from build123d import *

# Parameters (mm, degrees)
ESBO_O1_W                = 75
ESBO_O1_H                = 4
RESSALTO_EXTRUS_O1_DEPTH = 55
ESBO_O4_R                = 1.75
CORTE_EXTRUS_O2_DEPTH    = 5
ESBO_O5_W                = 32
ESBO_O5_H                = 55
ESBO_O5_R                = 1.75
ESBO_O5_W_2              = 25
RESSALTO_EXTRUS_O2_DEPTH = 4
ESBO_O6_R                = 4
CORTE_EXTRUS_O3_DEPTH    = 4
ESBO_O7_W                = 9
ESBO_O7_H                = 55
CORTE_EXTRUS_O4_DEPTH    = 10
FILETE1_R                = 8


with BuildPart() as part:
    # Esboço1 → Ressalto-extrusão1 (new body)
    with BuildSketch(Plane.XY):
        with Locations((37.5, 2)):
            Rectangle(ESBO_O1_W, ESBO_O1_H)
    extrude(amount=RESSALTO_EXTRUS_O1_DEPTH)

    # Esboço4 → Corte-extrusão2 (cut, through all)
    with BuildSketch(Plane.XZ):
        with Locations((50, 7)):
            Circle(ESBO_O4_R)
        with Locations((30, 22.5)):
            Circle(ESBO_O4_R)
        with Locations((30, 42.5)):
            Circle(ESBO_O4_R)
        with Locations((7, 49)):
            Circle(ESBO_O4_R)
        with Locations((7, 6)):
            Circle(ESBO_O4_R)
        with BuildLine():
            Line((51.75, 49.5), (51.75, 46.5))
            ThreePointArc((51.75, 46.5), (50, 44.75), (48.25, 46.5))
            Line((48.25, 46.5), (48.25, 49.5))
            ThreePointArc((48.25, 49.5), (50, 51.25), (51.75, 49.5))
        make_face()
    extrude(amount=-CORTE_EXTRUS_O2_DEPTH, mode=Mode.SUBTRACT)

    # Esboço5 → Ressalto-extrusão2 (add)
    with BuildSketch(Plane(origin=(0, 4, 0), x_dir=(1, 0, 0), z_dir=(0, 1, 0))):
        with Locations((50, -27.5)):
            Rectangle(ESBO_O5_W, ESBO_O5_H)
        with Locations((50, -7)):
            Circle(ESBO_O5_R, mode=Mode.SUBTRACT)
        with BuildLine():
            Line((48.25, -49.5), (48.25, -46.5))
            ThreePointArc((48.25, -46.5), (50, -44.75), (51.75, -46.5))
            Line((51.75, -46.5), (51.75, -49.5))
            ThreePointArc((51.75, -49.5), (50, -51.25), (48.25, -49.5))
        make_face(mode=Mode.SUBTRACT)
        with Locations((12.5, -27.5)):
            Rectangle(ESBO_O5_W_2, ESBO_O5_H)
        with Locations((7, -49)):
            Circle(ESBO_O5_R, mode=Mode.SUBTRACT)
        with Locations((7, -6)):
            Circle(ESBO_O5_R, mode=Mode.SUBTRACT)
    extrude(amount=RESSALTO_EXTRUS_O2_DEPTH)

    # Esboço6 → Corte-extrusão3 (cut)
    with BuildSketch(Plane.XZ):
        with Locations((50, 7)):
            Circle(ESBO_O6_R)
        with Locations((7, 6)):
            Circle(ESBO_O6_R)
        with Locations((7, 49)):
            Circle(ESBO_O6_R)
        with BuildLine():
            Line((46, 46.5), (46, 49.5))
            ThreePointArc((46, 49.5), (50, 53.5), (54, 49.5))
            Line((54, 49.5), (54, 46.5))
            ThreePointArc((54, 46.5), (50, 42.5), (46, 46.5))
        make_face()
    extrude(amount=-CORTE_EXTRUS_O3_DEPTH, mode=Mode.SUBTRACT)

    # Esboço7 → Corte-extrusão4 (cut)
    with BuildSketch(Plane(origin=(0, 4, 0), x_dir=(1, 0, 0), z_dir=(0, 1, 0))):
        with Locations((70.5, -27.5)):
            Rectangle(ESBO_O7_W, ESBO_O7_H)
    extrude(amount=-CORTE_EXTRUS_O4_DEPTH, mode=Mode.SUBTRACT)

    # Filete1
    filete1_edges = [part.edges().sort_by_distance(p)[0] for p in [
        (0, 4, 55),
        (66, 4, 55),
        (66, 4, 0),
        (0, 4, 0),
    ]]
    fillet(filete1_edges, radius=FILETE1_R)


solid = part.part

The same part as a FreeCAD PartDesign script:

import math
import FreeCAD as App
import Part
import Sketcher
from FreeCAD import Vector
Q = App.Units.Quantity


def edges_at(feature, points):
    """Names of the edges that pass closest to the given points."""
    edges = feature.Shape.Edges
    near = lambda p: min(range(len(edges)), key=lambda i: edges[i].distToShape(Part.Vertex(*p))[0])
    return sorted({f"Edge{near(p) + 1}" for p in points})

doc = App.newDocument("Part")
params = doc.addObject("Spreadsheet::Sheet", "Params")
for row, (alias, value) in enumerate([
    ("sketch1_width", "75 mm"),
    ("sketch1_height", "4 mm"),
    ("pad1_length", "55 mm"),
    ("sketch2_diameter", "3.5 mm"),
    ("sketch2_height", "3 mm"),
    ("sketch3_diameter", "3.5 mm"),
    ("sketch3_width", "32 mm"),
    ("sketch3_width2", "25 mm"),
    ("sketch3_height", "55 mm"),
    ("sketch3_height2", "3 mm"),
    ("pad2_length", "4 mm"),
    ("sketch4_diameter", "8 mm"),
    ("sketch4_height", "3 mm"),
    ("pocket2_length", "4 mm"),
    ("sketch5_width", "9 mm"),
    ("sketch5_height", "55 mm"),
    ("pocket3_length", "10 mm"),
    ("fillet_radius", "8 mm"),
], start=1):
    params.set(f"A{row}", alias)
    params.set(f"B{row}", "=" + value)
    params.setAlias(f"B{row}", alias)

body = doc.addObject("PartDesign::Body", "Body")

sketch1 = body.newObject("Sketcher::SketchObject", "Sketch")
sketch1.AttachmentSupport = (doc.getObject("XY_Plane"), [""])
sketch1.MapMode = "FlatFace"
sketch1.addGeometry(Part.LineSegment(Vector(0, 4, 0), Vector(0, 0, 0)), False)
sketch1.addGeometry(Part.LineSegment(Vector(0, 0, 0), Vector(75, 0, 0)), False)
sketch1.addGeometry(Part.LineSegment(Vector(75, 0, 0), Vector(75, 4, 0)), False)
sketch1.addGeometry(Part.LineSegment(Vector(75, 4, 0), Vector(0, 4, 0)), False)
sketch1.addConstraint(Sketcher.Constraint("Coincident", 0, 2, 1, 1))
sketch1.addConstraint(Sketcher.Constraint("Coincident", 1, 2, 2, 1))
sketch1.addConstraint(Sketcher.Constraint("Coincident", 2, 2, 3, 1))
sketch1.addConstraint(Sketcher.Constraint("Coincident", 3, 2, 0, 1))
sketch1.addConstraint(Sketcher.Constraint("Vertical", 0))
sketch1.addConstraint(Sketcher.Constraint("Horizontal", 1))
sketch1.addConstraint(Sketcher.Constraint("Vertical", 2))
sketch1.addConstraint(Sketcher.Constraint("Horizontal", 3))
sketch1.addConstraint(Sketcher.Constraint("Coincident", 0, 2, -1, 1))
sketch1.addConstraint(Sketcher.Constraint("DistanceX", 1, 1, 1, 2, Q("75 mm")))
sketch1.addConstraint(Sketcher.Constraint("DistanceY", 0, 2, 0, 1, Q("4 mm")))
sketch1.setExpression("Constraints[9]", "Params.sketch1_width")
sketch1.setExpression("Constraints[10]", "Params.sketch1_height")
pad1 = body.newObject("PartDesign::Pad", "Pad")
pad1.Profile = sketch1
pad1.setExpression("Length", "Params.pad1_length")

sketch2 = body.newObject("Sketcher::SketchObject", "Sketch001")
sketch2.AttachmentSupport = (doc.getObject("XZ_Plane"), [""])
sketch2.MapMode = "FlatFace"
sketch2.addGeometry(Part.Circle(Vector(50, 7, 0), Vector(0, 0, 1), 1.8), False)
sketch2.addGeometry(Part.Circle(Vector(30, 22.5, 0), Vector(0, 0, 1), 1.8), False)
sketch2.addGeometry(Part.Circle(Vector(30, 42.5, 0), Vector(0, 0, 1), 1.8), False)
sketch2.addGeometry(Part.Circle(Vector(7, 49, 0), Vector(0, 0, 1), 1.8), False)
sketch2.addGeometry(Part.Circle(Vector(7, 6, 0), Vector(0, 0, 1), 1.8), False)
sketch2.addGeometry(Part.LineSegment(Vector(51.8, 46.5, 0), Vector(51.8, 49.5, 0)), False)
sketch2.addGeometry(Part.ArcOfCircle(Part.Circle(Vector(50, 49.5, 0), Vector(0, 0, 1), 1.8), math.radians(0), math.radians(180)), False)
sketch2.addGeometry(Part.LineSegment(Vector(48.2, 49.5, 0), Vector(48.2, 46.5, 0)), False)
sketch2.addGeometry(Part.ArcOfCircle(Part.Circle(Vector(50, 46.5, 0), Vector(0, 0, 1), 1.8), math.radians(180), math.radians(360)), False)
sketch2.addConstraint(Sketcher.Constraint("Tangent", 5, 2, 6, 1))
sketch2.addConstraint(Sketcher.Constraint("Tangent", 6, 2, 7, 1))
sketch2.addConstraint(Sketcher.Constraint("Tangent", 7, 2, 8, 1))
sketch2.addConstraint(Sketcher.Constraint("Tangent", 8, 2, 5, 1))
sketch2.addConstraint(Sketcher.Constraint("Vertical", 5))
sketch2.addConstraint(Sketcher.Constraint("Vertical", 7))
sketch2.addConstraint(Sketcher.Constraint("Equal", 0, 1))
sketch2.addConstraint(Sketcher.Constraint("Equal", 1, 2))
sketch2.addConstraint(Sketcher.Constraint("Equal", 2, 3))
sketch2.addConstraint(Sketcher.Constraint("Equal", 3, 4))
sketch2.addConstraint(Sketcher.Constraint("Equal", 4, 6))
sketch2.addConstraint(Sketcher.Constraint("Vertical", 1, 3, 2, 3))
sketch2.addConstraint(Sketcher.Constraint("Vertical", 3, 3, 4, 3))
sketch2.addConstraint(Sketcher.Constraint("Vertical", 0, 3, 6, 3))
sketch2.addConstraint(Sketcher.Constraint("Diameter", 0, Q("3.5 mm")))
sketch2.addConstraint(Sketcher.Constraint("DistanceY", 5, 1, 5, 2, Q("3 mm")))
sketch2.addConstraint(Sketcher.Constraint("DistanceX", -1, 1, 0, 3, Q("50 mm")))
sketch2.addConstraint(Sketcher.Constraint("DistanceY", -1, 1, 0, 3, Q("7 mm")))
sketch2.addConstraint(Sketcher.Constraint("DistanceX", -1, 1, 1, 3, Q("30 mm")))
sketch2.addConstraint(Sketcher.Constraint("DistanceX", -1, 1, 3, 3, Q("7 mm")))
sketch2.addConstraint(Sketcher.Constraint("DistanceY", -1, 1, 3, 3, Q("49 mm")))
sketch2.addConstraint(Sketcher.Constraint("DistanceY", -1, 1, 4, 3, Q("6 mm")))
sketch2.addConstraint(Sketcher.Constraint("DistanceY", 1, 3, 2, 3, Q("20 mm")))
sketch2.addConstraint(Sketcher.Constraint("DistanceY", 2, 3, 6, 3, Q("7 mm")))
sketch2.addConstraint(Sketcher.Constraint("DistanceY", -1, 1, 1, 3, Q("22.5 mm")))
sketch2.setExpression("Constraints[14]", "Params.sketch2_diameter")
sketch2.setExpression("Constraints[15]", "Params.sketch2_height")
pocket1 = body.newObject("PartDesign::Pocket", "Pocket")
pocket1.Profile = sketch2
pocket1.Type = "ThroughAll"

sketch3 = body.newObject("Sketcher::SketchObject", "Sketch002")
sketch3.AttachmentSupport = (doc.getObject("XZ_Plane"), [""])
sketch3.MapMode = "FlatFace"
sketch3.AttachmentOffset = App.Placement(Vector(0, 0, -4), App.Rotation())
sketch3.addGeometry(Part.LineSegment(Vector(34, 0, 0), Vector(34, 55, 0)), False)
sketch3.addGeometry(Part.LineSegment(Vector(34, 55, 0), Vector(66, 55, 0)), False)
sketch3.addGeometry(Part.LineSegment(Vector(66, 55, 0), Vector(66, 0, 0)), False)
sketch3.addGeometry(Part.LineSegment(Vector(66, 0, 0), Vector(34, 0, 0)), False)
sketch3.addGeometry(Part.ArcOfCircle(Part.Circle(Vector(50, 49.5, 0), Vector(0, 0, 1), 1.8), math.radians(0), math.radians(180)), False)
sketch3.addGeometry(Part.LineSegment(Vector(48.2, 49.5, 0), Vector(48.2, 46.5, 0)), False)
sketch3.addGeometry(Part.ArcOfCircle(Part.Circle(Vector(50, 46.5, 0), Vector(0, 0, 1), 1.8), math.radians(180), math.radians(360)), False)
sketch3.addGeometry(Part.LineSegment(Vector(51.8, 46.5, 0), Vector(51.8, 49.5, 0)), False)
sketch3.addGeometry(Part.Circle(Vector(50, 7, 0), Vector(0, 0, 1), 1.8), False)
sketch3.addGeometry(Part.LineSegment(Vector(0, 0, 0), Vector(0, 55, 0)), False)
sketch3.addGeometry(Part.LineSegment(Vector(0, 55, 0), Vector(25, 55, 0)), False)
sketch3.addGeometry(Part.LineSegment(Vector(25, 55, 0), Vector(25, 0, 0)), False)
sketch3.addGeometry(Part.LineSegment(Vector(25, 0, 0), Vector(0, 0, 0)), False)
sketch3.addGeometry(Part.Circle(Vector(7, 49, 0), Vector(0, 0, 1), 1.8), False)
sketch3.addGeometry(Part.Circle(Vector(7, 6, 0), Vector(0, 0, 1), 1.8), False)
sketch3.addConstraint(Sketcher.Constraint("Coincident", 0, 2, 1, 1))
sketch3.addConstraint(Sketcher.Constraint("Coincident", 1, 2, 2, 1))
sketch3.addConstraint(Sketcher.Constraint("Coincident", 2, 2, 3, 1))
sketch3.addConstraint(Sketcher.Constraint("Coincident", 3, 2, 0, 1))
sketch3.addConstraint(Sketcher.Constraint("Tangent", 4, 2, 5, 1))
sketch3.addConstraint(Sketcher.Constraint("Tangent", 5, 2, 6, 1))
sketch3.addConstraint(Sketcher.Constraint("Tangent", 6, 2, 7, 1))
sketch3.addConstraint(Sketcher.Constraint("Tangent", 7, 2, 4, 1))
sketch3.addConstraint(Sketcher.Constraint("Coincident", 9, 2, 10, 1))
sketch3.addConstraint(Sketcher.Constraint("Coincident", 10, 2, 11, 1))
sketch3.addConstraint(Sketcher.Constraint("Coincident", 11, 2, 12, 1))
sketch3.addConstraint(Sketcher.Constraint("Coincident", 12, 2, 9, 1))
sketch3.addConstraint(Sketcher.Constraint("Vertical", 0))
sketch3.addConstraint(Sketcher.Constraint("Horizontal", 1))
sketch3.addConstraint(Sketcher.Constraint("Vertical", 2))
sketch3.addConstraint(Sketcher.Constraint("Horizontal", 3))
sketch3.addConstraint(Sketcher.Constraint("Vertical", 5))
sketch3.addConstraint(Sketcher.Constraint("Vertical", 7))
sketch3.addConstraint(Sketcher.Constraint("Vertical", 9))
sketch3.addConstraint(Sketcher.Constraint("Horizontal", 10))
sketch3.addConstraint(Sketcher.Constraint("Vertical", 11))
sketch3.addConstraint(Sketcher.Constraint("Horizontal", 12))
sketch3.addConstraint(Sketcher.Constraint("Coincident", 12, 2, -1, 1))
sketch3.addConstraint(Sketcher.Constraint("Equal", 6, 8))
sketch3.addConstraint(Sketcher.Constraint("Equal", 8, 13))
sketch3.addConstraint(Sketcher.Constraint("Equal", 13, 14))
sketch3.addConstraint(Sketcher.Constraint("PointOnObject", 2, 2, -1))
sketch3.addConstraint(Sketcher.Constraint("Horizontal", 1, 2, 9, 2))
sketch3.addConstraint(Sketcher.Constraint("Vertical", 6, 3, 8, 3))
sketch3.addConstraint(Sketcher.Constraint("Vertical", 13, 3, 14, 3))
sketch3.addConstraint(Sketcher.Constraint("Diameter", 8, Q("3.5 mm")))
sketch3.addConstraint(Sketcher.Constraint("DistanceX", 1, 1, 1, 2, Q("32 mm")))
sketch3.addConstraint(Sketcher.Constraint("DistanceX", 10, 1, 10, 2, Q("25 mm")))
sketch3.addConstraint(Sketcher.Constraint("DistanceY", 0, 1, 0, 2, Q("55 mm")))
sketch3.addConstraint(Sketcher.Constraint("DistanceY", 5, 2, 5, 1, Q("3 mm")))
sketch3.addConstraint(Sketcher.Constraint("DistanceX", -1, 1, 4, 3, Q("50 mm")))
sketch3.addConstraint(Sketcher.Constraint("DistanceY", -1, 1, 8, 3, Q("7 mm")))
sketch3.addConstraint(Sketcher.Constraint("DistanceX", -1, 1, 13, 3, Q("7 mm")))
sketch3.addConstraint(Sketcher.Constraint("DistanceY", -1, 1, 13, 3, Q("49 mm")))
sketch3.addConstraint(Sketcher.Constraint("DistanceY", -1, 1, 14, 3, Q("6 mm")))
sketch3.addConstraint(Sketcher.Constraint("DistanceX", -1, 1, 0, 2, Q("34 mm")))
sketch3.addConstraint(Sketcher.Constraint("DistanceY", -1, 1, 4, 3, Q("49.5 mm")))
sketch3.setExpression("Constraints[30]", "Params.sketch3_diameter")
sketch3.setExpression("Constraints[31]", "Params.sketch3_width")
sketch3.setExpression("Constraints[32]", "Params.sketch3_width2")
sketch3.setExpression("Constraints[33]", "Params.sketch3_height")
sketch3.setExpression("Constraints[34]", "Params.sketch3_height2")
pad2 = body.newObject("PartDesign::Pad", "Pad001")
pad2.Profile = sketch3
pad2.setExpression("Length", "Params.pad2_length")
pad2.Reversed = True

sketch4 = body.newObject("Sketcher::SketchObject", "Sketch003")
sketch4.AttachmentSupport = (doc.getObject("XZ_Plane"), [""])
sketch4.MapMode = "FlatFace"
sketch4.addGeometry(Part.Circle(Vector(50, 7, 0), Vector(0, 0, 1), 4), False)
sketch4.addGeometry(Part.Circle(Vector(7, 6, 0), Vector(0, 0, 1), 4), False)
sketch4.addGeometry(Part.Circle(Vector(7, 49, 0), Vector(0, 0, 1), 4), False)
sketch4.addGeometry(Part.LineSegment(Vector(46, 49.5, 0), Vector(46, 46.5, 0)), False)
sketch4.addGeometry(Part.ArcOfCircle(Part.Circle(Vector(50, 46.5, 0), Vector(0, 0, 1), 4), math.radians(180), math.radians(360)), False)
sketch4.addGeometry(Part.LineSegment(Vector(54, 46.5, 0), Vector(54, 49.5, 0)), False)
sketch4.addGeometry(Part.ArcOfCircle(Part.Circle(Vector(50, 49.5, 0), Vector(0, 0, 1), 4), math.radians(0), math.radians(180)), False)
sketch4.addConstraint(Sketcher.Constraint("Tangent", 3, 2, 4, 1))
sketch4.addConstraint(Sketcher.Constraint("Tangent", 4, 2, 5, 1))
sketch4.addConstraint(Sketcher.Constraint("Tangent", 5, 2, 6, 1))
sketch4.addConstraint(Sketcher.Constraint("Tangent", 6, 2, 3, 1))
sketch4.addConstraint(Sketcher.Constraint("Vertical", 3))
sketch4.addConstraint(Sketcher.Constraint("Vertical", 5))
sketch4.addConstraint(Sketcher.Constraint("Equal", 0, 1))
sketch4.addConstraint(Sketcher.Constraint("Equal", 1, 2))
sketch4.addConstraint(Sketcher.Constraint("Equal", 2, 4))
sketch4.addConstraint(Sketcher.Constraint("Vertical", 1, 3, 2, 3))
sketch4.addConstraint(Sketcher.Constraint("Vertical", 0, 3, 4, 3))
sketch4.addConstraint(Sketcher.Constraint("Diameter", 0, Q("8 mm")))
sketch4.addConstraint(Sketcher.Constraint("DistanceY", 3, 2, 3, 1, Q("3 mm")))
sketch4.addConstraint(Sketcher.Constraint("DistanceX", -1, 1, 0, 3, Q("50 mm")))
sketch4.addConstraint(Sketcher.Constraint("DistanceY", -1, 1, 0, 3, Q("7 mm")))
sketch4.addConstraint(Sketcher.Constraint("DistanceX", -1, 1, 1, 3, Q("7 mm")))
sketch4.addConstraint(Sketcher.Constraint("DistanceY", -1, 1, 1, 3, Q("6 mm")))
sketch4.addConstraint(Sketcher.Constraint("DistanceY", -1, 1, 2, 3, Q("49 mm")))
sketch4.addConstraint(Sketcher.Constraint("DistanceY", -1, 1, 4, 3, Q("46.5 mm")))
sketch4.setExpression("Constraints[11]", "Params.sketch4_diameter")
sketch4.setExpression("Constraints[12]", "Params.sketch4_height")
pocket2 = body.newObject("PartDesign::Pocket", "Pocket001")
pocket2.Profile = sketch4
pocket2.setExpression("Length", "Params.pocket2_length")

sketch5 = body.newObject("Sketcher::SketchObject", "Sketch004")
sketch5.AttachmentSupport = (doc.getObject("XZ_Plane"), [""])
sketch5.MapMode = "FlatFace"
sketch5.AttachmentOffset = App.Placement(Vector(0, 0, -4), App.Rotation())
sketch5.addGeometry(Part.LineSegment(Vector(66, 0, 0), Vector(66, 55, 0)), False)
sketch5.addGeometry(Part.LineSegment(Vector(66, 55, 0), Vector(75, 55, 0)), False)
sketch5.addGeometry(Part.LineSegment(Vector(75, 55, 0), Vector(75, 0, 0)), False)
sketch5.addGeometry(Part.LineSegment(Vector(75, 0, 0), Vector(66, 0, 0)), False)
sketch5.addConstraint(Sketcher.Constraint("Coincident", 0, 2, 1, 1))
sketch5.addConstraint(Sketcher.Constraint("Coincident", 1, 2, 2, 1))
sketch5.addConstraint(Sketcher.Constraint("Coincident", 2, 2, 3, 1))
sketch5.addConstraint(Sketcher.Constraint("Coincident", 3, 2, 0, 1))
sketch5.addConstraint(Sketcher.Constraint("Vertical", 0))
sketch5.addConstraint(Sketcher.Constraint("Horizontal", 1))
sketch5.addConstraint(Sketcher.Constraint("Vertical", 2))
sketch5.addConstraint(Sketcher.Constraint("Horizontal", 3))
sketch5.addConstraint(Sketcher.Constraint("PointOnObject", 2, 2, -1))
sketch5.addConstraint(Sketcher.Constraint("DistanceX", 1, 1, 1, 2, Q("9 mm")))
sketch5.addConstraint(Sketcher.Constraint("DistanceY", 0, 1, 0, 2, Q("55 mm")))
sketch5.addConstraint(Sketcher.Constraint("DistanceX", -1, 1, 0, 2, Q("66 mm")))
sketch5.setExpression("Constraints[9]", "Params.sketch5_width")
sketch5.setExpression("Constraints[10]", "Params.sketch5_height")
pocket3 = body.newObject("PartDesign::Pocket", "Pocket002")
pocket3.Profile = sketch5
pocket3.setExpression("Length", "Params.pocket3_length")
pocket3.Reversed = True
doc.recompute()

fillet = body.newObject("PartDesign::Fillet", "Fillet")
fillet.Base = (pocket3, edges_at(pocket3, [
    (0, 4, 55),
    (66, 4, 55),
    (66, 4, 0),
    (0, 4, 0),
]))
fillet.setExpression("Radius", "Params.fillet_radius")

doc.recompute()
